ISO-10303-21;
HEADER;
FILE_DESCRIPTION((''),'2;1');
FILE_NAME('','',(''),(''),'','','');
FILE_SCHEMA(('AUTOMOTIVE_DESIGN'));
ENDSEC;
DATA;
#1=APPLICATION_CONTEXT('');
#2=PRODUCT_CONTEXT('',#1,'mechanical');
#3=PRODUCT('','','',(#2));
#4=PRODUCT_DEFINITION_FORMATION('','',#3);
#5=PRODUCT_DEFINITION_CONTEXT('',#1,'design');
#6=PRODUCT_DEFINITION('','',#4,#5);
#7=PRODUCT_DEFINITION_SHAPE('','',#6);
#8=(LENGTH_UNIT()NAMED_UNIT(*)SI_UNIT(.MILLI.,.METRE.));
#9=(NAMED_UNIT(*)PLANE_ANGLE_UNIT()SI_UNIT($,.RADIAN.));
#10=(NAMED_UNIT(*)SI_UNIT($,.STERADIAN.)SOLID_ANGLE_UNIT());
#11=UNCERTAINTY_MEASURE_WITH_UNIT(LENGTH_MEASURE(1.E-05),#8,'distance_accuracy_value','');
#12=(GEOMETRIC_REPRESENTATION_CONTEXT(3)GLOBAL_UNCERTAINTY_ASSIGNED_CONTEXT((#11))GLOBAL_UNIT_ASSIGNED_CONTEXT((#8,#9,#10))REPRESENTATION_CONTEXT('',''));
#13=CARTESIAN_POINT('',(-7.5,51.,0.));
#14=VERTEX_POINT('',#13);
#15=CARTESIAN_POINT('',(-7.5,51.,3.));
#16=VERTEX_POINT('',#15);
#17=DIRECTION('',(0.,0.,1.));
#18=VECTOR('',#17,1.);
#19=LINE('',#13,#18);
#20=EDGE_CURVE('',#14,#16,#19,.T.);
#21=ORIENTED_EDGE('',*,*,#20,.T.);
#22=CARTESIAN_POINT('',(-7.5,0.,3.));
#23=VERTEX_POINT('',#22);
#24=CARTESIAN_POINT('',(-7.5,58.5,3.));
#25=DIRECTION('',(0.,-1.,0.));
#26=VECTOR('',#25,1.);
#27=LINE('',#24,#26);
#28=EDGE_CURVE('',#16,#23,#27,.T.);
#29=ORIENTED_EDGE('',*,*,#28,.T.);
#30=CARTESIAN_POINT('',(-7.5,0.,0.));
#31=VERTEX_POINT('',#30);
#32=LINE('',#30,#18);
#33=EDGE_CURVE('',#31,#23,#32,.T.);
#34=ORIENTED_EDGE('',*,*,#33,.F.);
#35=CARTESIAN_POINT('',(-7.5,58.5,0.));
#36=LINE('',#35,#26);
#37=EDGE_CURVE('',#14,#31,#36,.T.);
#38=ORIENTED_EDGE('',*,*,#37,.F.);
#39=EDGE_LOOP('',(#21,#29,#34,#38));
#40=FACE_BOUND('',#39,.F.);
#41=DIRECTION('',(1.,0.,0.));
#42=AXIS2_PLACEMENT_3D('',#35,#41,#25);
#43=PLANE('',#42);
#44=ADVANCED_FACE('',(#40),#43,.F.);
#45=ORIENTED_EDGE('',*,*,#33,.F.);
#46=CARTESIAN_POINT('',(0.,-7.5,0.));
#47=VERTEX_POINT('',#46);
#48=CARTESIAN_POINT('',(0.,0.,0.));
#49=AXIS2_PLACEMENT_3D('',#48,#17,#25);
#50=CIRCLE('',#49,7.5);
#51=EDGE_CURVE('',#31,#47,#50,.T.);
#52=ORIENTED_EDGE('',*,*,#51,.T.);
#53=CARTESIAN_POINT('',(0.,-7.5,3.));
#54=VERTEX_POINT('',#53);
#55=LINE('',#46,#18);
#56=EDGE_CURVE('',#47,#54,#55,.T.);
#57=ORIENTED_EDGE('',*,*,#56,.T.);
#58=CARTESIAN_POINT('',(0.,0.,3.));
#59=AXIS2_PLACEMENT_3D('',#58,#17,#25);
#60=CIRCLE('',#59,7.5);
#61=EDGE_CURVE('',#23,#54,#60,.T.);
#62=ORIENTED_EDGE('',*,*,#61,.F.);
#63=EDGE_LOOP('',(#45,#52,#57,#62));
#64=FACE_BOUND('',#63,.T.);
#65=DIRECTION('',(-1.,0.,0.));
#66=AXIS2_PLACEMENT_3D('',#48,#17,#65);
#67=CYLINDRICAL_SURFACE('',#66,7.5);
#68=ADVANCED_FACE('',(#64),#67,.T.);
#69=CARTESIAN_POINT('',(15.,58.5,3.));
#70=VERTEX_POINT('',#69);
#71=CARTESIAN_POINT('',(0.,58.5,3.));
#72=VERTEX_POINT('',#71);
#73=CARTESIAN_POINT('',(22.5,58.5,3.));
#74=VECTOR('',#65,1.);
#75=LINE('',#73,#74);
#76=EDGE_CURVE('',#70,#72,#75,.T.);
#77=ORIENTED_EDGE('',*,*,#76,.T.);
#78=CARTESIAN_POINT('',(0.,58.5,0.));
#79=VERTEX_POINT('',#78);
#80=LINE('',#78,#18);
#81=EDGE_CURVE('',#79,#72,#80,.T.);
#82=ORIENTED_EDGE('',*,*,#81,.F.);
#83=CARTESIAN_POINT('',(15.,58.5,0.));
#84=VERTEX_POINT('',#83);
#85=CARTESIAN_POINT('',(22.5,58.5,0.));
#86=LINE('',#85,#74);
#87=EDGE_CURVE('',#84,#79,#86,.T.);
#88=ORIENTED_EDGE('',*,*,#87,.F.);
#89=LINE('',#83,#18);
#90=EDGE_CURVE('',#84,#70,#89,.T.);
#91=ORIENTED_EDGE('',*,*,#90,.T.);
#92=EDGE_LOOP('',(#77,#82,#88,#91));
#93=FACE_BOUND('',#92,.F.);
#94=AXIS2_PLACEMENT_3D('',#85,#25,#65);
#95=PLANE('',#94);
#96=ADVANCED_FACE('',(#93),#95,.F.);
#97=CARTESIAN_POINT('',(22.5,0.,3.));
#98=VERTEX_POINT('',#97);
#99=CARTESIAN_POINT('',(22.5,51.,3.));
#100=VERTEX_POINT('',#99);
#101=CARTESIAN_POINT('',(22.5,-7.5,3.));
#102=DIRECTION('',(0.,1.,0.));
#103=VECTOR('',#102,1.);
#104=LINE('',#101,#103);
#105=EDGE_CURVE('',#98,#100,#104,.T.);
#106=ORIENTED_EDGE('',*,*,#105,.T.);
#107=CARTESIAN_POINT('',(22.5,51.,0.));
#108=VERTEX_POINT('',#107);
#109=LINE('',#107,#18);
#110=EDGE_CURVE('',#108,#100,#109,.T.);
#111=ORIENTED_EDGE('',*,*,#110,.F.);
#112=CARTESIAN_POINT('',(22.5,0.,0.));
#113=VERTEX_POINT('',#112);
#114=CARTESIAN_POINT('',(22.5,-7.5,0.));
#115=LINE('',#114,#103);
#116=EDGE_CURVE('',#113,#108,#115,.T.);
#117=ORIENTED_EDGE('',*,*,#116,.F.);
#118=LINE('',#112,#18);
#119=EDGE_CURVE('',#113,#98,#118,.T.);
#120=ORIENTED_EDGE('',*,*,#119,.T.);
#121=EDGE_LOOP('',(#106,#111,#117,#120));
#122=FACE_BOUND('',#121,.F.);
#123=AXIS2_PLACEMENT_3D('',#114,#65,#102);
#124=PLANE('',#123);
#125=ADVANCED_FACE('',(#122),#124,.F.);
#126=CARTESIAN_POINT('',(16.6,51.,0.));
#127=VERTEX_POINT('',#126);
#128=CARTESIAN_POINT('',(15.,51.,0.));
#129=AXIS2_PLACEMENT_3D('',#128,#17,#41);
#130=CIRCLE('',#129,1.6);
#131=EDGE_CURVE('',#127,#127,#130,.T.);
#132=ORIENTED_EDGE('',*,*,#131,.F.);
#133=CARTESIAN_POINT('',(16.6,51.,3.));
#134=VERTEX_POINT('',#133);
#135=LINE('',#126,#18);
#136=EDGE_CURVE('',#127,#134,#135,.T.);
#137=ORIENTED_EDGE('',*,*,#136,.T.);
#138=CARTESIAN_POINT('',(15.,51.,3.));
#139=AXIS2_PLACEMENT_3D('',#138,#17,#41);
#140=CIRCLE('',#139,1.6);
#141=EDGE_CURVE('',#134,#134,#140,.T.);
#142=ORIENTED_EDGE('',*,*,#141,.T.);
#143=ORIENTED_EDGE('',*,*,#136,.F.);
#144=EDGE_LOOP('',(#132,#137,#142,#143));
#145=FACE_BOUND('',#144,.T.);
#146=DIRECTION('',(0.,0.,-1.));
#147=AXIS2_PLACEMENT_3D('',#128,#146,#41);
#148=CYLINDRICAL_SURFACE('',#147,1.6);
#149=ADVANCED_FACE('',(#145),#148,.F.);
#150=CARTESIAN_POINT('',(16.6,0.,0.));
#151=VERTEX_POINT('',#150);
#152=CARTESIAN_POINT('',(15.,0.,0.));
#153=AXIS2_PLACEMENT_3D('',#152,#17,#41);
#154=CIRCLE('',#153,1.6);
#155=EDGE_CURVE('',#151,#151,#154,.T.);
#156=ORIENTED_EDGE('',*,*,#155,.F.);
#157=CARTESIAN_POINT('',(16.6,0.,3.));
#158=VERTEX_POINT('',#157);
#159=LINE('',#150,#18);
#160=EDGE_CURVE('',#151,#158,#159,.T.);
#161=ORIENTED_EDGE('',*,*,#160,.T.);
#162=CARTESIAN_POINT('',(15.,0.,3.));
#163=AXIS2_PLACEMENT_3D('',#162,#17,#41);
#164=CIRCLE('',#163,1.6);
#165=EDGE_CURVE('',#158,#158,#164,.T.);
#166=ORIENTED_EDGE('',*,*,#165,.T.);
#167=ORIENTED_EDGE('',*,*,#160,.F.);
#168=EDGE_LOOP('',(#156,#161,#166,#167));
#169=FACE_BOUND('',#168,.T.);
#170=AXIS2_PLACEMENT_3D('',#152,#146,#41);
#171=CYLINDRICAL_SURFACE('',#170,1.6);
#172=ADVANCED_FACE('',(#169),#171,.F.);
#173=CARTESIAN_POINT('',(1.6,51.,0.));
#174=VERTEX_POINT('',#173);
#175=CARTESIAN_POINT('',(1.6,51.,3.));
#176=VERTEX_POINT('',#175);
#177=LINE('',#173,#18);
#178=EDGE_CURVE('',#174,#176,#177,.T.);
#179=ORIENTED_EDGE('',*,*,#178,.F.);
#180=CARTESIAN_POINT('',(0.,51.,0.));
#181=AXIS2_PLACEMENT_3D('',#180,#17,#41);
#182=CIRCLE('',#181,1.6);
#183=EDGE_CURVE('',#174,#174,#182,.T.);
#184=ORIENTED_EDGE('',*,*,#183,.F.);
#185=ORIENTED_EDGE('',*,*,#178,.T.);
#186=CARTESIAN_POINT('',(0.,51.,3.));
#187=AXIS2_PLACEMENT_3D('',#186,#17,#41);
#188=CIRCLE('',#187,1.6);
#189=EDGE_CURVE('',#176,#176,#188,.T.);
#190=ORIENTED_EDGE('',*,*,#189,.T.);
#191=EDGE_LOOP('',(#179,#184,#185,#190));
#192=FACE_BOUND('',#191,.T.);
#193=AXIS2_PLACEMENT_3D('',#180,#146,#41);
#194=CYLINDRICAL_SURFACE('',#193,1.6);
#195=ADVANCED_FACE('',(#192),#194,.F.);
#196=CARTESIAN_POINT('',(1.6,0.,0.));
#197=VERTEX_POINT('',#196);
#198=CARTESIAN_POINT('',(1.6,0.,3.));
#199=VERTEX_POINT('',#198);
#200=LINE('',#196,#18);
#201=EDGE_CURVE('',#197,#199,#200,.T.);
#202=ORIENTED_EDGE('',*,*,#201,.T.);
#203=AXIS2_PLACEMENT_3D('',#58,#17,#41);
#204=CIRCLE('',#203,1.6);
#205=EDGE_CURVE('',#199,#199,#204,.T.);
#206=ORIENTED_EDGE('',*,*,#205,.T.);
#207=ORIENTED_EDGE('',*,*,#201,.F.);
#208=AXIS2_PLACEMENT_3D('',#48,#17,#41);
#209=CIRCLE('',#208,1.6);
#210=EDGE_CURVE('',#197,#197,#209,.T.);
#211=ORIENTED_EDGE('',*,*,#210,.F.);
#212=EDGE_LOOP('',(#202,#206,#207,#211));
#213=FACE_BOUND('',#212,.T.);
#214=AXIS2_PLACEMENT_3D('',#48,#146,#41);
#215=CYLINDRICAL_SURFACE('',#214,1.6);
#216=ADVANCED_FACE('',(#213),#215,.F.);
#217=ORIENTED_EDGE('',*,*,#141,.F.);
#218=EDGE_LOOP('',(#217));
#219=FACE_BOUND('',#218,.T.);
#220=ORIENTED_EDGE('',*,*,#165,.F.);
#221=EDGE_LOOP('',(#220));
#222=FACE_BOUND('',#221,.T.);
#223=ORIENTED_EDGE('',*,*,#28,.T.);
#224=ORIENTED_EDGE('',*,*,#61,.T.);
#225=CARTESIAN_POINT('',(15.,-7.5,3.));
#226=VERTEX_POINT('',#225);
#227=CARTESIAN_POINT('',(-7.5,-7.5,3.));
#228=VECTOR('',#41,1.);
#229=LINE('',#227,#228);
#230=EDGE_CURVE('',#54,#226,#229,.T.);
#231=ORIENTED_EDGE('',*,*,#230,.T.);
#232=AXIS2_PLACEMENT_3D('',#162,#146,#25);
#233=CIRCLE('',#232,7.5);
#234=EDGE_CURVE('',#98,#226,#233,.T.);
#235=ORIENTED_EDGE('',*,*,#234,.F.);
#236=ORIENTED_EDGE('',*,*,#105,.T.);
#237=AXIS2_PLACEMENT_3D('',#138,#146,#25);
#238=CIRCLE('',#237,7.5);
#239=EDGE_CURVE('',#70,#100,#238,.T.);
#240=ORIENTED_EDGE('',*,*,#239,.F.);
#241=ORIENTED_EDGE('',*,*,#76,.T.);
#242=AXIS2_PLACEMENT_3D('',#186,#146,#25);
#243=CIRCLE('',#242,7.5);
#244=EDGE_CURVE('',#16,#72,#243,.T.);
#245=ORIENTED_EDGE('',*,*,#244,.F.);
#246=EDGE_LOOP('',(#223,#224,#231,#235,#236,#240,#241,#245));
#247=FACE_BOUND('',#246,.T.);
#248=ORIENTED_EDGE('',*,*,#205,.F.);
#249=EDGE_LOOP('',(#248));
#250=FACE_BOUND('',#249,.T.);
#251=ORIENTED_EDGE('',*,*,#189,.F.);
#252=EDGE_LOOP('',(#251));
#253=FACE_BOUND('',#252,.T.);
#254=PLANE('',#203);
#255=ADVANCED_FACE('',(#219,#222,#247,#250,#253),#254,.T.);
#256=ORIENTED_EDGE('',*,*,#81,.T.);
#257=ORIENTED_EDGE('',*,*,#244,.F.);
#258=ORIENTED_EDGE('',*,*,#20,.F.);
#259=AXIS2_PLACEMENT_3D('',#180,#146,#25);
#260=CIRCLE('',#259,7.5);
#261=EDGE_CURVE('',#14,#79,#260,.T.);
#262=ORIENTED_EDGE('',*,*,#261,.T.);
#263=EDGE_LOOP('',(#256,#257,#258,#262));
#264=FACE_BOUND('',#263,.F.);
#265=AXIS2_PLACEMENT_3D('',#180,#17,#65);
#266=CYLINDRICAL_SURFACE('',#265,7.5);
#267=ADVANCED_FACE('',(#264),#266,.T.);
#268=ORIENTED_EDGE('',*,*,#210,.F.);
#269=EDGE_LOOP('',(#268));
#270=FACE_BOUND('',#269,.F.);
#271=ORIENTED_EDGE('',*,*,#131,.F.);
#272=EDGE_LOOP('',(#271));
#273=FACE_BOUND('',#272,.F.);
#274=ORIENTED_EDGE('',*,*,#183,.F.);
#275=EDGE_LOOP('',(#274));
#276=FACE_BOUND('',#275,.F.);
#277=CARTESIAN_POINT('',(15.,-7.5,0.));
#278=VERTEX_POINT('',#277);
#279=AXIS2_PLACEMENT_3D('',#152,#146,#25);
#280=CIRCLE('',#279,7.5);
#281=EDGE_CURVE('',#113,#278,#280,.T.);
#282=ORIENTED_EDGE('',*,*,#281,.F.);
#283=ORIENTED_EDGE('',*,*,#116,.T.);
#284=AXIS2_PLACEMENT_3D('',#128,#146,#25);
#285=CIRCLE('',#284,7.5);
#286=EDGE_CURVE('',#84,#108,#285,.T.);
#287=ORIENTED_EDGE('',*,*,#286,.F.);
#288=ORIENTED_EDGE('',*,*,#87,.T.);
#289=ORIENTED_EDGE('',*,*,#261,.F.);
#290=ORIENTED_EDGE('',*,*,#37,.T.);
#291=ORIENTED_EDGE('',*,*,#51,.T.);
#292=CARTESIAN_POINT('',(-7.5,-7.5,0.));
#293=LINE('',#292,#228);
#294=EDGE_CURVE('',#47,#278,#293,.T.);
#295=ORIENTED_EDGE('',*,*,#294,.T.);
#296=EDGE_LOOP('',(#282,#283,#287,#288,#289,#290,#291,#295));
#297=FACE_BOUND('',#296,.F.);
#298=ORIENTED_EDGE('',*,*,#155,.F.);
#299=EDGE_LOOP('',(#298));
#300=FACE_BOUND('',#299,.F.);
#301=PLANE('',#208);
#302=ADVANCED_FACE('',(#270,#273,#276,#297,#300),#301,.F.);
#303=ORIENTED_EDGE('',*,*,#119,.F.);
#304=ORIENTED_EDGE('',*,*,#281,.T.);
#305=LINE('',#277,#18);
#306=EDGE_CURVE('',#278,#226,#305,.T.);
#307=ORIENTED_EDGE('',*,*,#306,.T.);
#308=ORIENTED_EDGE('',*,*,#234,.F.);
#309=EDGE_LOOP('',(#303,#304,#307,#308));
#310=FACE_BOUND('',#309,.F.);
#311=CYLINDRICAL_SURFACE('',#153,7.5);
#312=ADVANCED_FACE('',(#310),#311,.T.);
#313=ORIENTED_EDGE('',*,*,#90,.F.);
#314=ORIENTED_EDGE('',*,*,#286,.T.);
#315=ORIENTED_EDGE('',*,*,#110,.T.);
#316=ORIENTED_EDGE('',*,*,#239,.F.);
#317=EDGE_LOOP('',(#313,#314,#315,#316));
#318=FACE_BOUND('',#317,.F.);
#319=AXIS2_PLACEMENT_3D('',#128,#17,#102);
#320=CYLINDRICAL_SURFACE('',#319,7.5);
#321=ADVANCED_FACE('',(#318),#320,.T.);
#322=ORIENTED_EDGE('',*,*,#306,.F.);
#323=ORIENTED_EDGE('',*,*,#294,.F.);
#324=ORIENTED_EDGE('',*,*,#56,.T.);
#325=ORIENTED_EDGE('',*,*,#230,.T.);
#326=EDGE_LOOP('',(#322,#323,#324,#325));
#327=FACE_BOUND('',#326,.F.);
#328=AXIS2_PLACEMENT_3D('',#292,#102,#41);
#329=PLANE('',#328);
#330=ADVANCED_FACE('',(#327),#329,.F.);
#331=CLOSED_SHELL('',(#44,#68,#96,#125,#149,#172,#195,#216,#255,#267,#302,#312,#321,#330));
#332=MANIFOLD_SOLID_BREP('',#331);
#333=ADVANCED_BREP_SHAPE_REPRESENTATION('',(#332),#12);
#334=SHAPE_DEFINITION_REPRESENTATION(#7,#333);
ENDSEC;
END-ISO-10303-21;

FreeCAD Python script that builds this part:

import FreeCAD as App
import Part
import Sketcher

V = App.Vector


def edges_at(feature, points):
    """Names of the edges that pass closest to the given points."""
    edges = feature.Shape.Edges
    near = lambda p: min(range(len(edges)), key=lambda i: edges[i].distToShape(Part.Vertex(*p))[0])
    return sorted({f"Edge{near(p) + 1}" for p in points})


def add_polygon(sketch, points):
    """Adds a closed chain of lines whose ends are joined by coincident constraints."""
    first, n = sketch.GeometryCount, len(points)
    for a, b in zip(points, points[1:] + points[:1]):
        sketch.addGeometry(Part.LineSegment(App.Vector(*a, 0), App.Vector(*b, 0)), False)
    for i in range(n):
        sketch.addConstraint(Sketcher.Constraint("Coincident", first + i, 2, first + (i + 1) % n, 1))

doc = App.newDocument("Part")
body = doc.addObject("PartDesign::Body", "Body")

sketch1 = body.newObject("Sketcher::SketchObject", "Sketch")
sketch1.AttachmentSupport = (doc.getObject("XY_Plane"), [""])
sketch1.MapMode = "FlatFace"
add_polygon(sketch1, [(-7.5, 58.5), (-7.5, -7.5), (22.5, -7.5), (22.5, 58.5)])
sketch1.addGeometry(Part.Circle(V(0, 0, 0), V(0, 0, 1), 1.6), False)
sketch1.addGeometry(Part.Circle(V(15, 0, 0), V(0, 0, 1), 1.6), False)
sketch1.addGeometry(Part.Circle(V(0, 51, 0), V(0, 0, 1), 1.6), False)
sketch1.addGeometry(Part.Circle(V(15, 51, 0), V(0, 0, 1), 1.6), False)
sketch1.addConstraint([
    Sketcher.Constraint("Vertical", 0),
    Sketcher.Constraint("Horizontal", 1),
    Sketcher.Constraint("Vertical", 2),
    Sketcher.Constraint("Horizontal", 3),
    Sketcher.Constraint("Coincident", 4, 3, -1, 1),
    Sketcher.Constraint("Equal", 4, 5),
    Sketcher.Constraint("Equal", 5, 6),
    Sketcher.Constraint("Equal", 6, 7),
    Sketcher.Constraint("PointOnObject", 5, 3, -1),
    Sketcher.Constraint("PointOnObject", 6, 3, -2),
    Sketcher.Constraint("Horizontal", 6, 3, 7, 3),
    Sketcher.Constraint("Vertical", 5, 3, 7, 3),
    Sketcher.Constraint("Diameter", 4, 3.2),
    Sketcher.Constraint("DistanceX", -1, 1, 5, 3, 15.0),
    Sketcher.Constraint("DistanceY", -1, 1, 6, 3, 51.0),
    Sketcher.Constraint("DistanceX", 0, 2, -1, 1, 7.5),
    Sketcher.Constraint("DistanceY", 0, 2, -1, 1, 7.5),
    Sketcher.Constraint("DistanceX", 5, 3, 1, 2, 7.5),
    Sketcher.Constraint("DistanceY", 7, 3, 2, 2, 7.5),
])
pad1 = body.newObject("PartDesign::Pad", "Pad")
pad1.Profile = sketch1
pad1.Length = 3
doc.recompute()

fillet = body.newObject("PartDesign::Fillet", "Fillet")
fillet.Base = (pad1, edges_at(pad1, [
    (-7.5, 58.5, 1.5),
    (22.5, 58.5, 1.5),
    (22.5, -7.5, 1.5),
    (-7.5, -7.5, 1.5),
]))
fillet.Radius = 7.5

doc.recompute()
